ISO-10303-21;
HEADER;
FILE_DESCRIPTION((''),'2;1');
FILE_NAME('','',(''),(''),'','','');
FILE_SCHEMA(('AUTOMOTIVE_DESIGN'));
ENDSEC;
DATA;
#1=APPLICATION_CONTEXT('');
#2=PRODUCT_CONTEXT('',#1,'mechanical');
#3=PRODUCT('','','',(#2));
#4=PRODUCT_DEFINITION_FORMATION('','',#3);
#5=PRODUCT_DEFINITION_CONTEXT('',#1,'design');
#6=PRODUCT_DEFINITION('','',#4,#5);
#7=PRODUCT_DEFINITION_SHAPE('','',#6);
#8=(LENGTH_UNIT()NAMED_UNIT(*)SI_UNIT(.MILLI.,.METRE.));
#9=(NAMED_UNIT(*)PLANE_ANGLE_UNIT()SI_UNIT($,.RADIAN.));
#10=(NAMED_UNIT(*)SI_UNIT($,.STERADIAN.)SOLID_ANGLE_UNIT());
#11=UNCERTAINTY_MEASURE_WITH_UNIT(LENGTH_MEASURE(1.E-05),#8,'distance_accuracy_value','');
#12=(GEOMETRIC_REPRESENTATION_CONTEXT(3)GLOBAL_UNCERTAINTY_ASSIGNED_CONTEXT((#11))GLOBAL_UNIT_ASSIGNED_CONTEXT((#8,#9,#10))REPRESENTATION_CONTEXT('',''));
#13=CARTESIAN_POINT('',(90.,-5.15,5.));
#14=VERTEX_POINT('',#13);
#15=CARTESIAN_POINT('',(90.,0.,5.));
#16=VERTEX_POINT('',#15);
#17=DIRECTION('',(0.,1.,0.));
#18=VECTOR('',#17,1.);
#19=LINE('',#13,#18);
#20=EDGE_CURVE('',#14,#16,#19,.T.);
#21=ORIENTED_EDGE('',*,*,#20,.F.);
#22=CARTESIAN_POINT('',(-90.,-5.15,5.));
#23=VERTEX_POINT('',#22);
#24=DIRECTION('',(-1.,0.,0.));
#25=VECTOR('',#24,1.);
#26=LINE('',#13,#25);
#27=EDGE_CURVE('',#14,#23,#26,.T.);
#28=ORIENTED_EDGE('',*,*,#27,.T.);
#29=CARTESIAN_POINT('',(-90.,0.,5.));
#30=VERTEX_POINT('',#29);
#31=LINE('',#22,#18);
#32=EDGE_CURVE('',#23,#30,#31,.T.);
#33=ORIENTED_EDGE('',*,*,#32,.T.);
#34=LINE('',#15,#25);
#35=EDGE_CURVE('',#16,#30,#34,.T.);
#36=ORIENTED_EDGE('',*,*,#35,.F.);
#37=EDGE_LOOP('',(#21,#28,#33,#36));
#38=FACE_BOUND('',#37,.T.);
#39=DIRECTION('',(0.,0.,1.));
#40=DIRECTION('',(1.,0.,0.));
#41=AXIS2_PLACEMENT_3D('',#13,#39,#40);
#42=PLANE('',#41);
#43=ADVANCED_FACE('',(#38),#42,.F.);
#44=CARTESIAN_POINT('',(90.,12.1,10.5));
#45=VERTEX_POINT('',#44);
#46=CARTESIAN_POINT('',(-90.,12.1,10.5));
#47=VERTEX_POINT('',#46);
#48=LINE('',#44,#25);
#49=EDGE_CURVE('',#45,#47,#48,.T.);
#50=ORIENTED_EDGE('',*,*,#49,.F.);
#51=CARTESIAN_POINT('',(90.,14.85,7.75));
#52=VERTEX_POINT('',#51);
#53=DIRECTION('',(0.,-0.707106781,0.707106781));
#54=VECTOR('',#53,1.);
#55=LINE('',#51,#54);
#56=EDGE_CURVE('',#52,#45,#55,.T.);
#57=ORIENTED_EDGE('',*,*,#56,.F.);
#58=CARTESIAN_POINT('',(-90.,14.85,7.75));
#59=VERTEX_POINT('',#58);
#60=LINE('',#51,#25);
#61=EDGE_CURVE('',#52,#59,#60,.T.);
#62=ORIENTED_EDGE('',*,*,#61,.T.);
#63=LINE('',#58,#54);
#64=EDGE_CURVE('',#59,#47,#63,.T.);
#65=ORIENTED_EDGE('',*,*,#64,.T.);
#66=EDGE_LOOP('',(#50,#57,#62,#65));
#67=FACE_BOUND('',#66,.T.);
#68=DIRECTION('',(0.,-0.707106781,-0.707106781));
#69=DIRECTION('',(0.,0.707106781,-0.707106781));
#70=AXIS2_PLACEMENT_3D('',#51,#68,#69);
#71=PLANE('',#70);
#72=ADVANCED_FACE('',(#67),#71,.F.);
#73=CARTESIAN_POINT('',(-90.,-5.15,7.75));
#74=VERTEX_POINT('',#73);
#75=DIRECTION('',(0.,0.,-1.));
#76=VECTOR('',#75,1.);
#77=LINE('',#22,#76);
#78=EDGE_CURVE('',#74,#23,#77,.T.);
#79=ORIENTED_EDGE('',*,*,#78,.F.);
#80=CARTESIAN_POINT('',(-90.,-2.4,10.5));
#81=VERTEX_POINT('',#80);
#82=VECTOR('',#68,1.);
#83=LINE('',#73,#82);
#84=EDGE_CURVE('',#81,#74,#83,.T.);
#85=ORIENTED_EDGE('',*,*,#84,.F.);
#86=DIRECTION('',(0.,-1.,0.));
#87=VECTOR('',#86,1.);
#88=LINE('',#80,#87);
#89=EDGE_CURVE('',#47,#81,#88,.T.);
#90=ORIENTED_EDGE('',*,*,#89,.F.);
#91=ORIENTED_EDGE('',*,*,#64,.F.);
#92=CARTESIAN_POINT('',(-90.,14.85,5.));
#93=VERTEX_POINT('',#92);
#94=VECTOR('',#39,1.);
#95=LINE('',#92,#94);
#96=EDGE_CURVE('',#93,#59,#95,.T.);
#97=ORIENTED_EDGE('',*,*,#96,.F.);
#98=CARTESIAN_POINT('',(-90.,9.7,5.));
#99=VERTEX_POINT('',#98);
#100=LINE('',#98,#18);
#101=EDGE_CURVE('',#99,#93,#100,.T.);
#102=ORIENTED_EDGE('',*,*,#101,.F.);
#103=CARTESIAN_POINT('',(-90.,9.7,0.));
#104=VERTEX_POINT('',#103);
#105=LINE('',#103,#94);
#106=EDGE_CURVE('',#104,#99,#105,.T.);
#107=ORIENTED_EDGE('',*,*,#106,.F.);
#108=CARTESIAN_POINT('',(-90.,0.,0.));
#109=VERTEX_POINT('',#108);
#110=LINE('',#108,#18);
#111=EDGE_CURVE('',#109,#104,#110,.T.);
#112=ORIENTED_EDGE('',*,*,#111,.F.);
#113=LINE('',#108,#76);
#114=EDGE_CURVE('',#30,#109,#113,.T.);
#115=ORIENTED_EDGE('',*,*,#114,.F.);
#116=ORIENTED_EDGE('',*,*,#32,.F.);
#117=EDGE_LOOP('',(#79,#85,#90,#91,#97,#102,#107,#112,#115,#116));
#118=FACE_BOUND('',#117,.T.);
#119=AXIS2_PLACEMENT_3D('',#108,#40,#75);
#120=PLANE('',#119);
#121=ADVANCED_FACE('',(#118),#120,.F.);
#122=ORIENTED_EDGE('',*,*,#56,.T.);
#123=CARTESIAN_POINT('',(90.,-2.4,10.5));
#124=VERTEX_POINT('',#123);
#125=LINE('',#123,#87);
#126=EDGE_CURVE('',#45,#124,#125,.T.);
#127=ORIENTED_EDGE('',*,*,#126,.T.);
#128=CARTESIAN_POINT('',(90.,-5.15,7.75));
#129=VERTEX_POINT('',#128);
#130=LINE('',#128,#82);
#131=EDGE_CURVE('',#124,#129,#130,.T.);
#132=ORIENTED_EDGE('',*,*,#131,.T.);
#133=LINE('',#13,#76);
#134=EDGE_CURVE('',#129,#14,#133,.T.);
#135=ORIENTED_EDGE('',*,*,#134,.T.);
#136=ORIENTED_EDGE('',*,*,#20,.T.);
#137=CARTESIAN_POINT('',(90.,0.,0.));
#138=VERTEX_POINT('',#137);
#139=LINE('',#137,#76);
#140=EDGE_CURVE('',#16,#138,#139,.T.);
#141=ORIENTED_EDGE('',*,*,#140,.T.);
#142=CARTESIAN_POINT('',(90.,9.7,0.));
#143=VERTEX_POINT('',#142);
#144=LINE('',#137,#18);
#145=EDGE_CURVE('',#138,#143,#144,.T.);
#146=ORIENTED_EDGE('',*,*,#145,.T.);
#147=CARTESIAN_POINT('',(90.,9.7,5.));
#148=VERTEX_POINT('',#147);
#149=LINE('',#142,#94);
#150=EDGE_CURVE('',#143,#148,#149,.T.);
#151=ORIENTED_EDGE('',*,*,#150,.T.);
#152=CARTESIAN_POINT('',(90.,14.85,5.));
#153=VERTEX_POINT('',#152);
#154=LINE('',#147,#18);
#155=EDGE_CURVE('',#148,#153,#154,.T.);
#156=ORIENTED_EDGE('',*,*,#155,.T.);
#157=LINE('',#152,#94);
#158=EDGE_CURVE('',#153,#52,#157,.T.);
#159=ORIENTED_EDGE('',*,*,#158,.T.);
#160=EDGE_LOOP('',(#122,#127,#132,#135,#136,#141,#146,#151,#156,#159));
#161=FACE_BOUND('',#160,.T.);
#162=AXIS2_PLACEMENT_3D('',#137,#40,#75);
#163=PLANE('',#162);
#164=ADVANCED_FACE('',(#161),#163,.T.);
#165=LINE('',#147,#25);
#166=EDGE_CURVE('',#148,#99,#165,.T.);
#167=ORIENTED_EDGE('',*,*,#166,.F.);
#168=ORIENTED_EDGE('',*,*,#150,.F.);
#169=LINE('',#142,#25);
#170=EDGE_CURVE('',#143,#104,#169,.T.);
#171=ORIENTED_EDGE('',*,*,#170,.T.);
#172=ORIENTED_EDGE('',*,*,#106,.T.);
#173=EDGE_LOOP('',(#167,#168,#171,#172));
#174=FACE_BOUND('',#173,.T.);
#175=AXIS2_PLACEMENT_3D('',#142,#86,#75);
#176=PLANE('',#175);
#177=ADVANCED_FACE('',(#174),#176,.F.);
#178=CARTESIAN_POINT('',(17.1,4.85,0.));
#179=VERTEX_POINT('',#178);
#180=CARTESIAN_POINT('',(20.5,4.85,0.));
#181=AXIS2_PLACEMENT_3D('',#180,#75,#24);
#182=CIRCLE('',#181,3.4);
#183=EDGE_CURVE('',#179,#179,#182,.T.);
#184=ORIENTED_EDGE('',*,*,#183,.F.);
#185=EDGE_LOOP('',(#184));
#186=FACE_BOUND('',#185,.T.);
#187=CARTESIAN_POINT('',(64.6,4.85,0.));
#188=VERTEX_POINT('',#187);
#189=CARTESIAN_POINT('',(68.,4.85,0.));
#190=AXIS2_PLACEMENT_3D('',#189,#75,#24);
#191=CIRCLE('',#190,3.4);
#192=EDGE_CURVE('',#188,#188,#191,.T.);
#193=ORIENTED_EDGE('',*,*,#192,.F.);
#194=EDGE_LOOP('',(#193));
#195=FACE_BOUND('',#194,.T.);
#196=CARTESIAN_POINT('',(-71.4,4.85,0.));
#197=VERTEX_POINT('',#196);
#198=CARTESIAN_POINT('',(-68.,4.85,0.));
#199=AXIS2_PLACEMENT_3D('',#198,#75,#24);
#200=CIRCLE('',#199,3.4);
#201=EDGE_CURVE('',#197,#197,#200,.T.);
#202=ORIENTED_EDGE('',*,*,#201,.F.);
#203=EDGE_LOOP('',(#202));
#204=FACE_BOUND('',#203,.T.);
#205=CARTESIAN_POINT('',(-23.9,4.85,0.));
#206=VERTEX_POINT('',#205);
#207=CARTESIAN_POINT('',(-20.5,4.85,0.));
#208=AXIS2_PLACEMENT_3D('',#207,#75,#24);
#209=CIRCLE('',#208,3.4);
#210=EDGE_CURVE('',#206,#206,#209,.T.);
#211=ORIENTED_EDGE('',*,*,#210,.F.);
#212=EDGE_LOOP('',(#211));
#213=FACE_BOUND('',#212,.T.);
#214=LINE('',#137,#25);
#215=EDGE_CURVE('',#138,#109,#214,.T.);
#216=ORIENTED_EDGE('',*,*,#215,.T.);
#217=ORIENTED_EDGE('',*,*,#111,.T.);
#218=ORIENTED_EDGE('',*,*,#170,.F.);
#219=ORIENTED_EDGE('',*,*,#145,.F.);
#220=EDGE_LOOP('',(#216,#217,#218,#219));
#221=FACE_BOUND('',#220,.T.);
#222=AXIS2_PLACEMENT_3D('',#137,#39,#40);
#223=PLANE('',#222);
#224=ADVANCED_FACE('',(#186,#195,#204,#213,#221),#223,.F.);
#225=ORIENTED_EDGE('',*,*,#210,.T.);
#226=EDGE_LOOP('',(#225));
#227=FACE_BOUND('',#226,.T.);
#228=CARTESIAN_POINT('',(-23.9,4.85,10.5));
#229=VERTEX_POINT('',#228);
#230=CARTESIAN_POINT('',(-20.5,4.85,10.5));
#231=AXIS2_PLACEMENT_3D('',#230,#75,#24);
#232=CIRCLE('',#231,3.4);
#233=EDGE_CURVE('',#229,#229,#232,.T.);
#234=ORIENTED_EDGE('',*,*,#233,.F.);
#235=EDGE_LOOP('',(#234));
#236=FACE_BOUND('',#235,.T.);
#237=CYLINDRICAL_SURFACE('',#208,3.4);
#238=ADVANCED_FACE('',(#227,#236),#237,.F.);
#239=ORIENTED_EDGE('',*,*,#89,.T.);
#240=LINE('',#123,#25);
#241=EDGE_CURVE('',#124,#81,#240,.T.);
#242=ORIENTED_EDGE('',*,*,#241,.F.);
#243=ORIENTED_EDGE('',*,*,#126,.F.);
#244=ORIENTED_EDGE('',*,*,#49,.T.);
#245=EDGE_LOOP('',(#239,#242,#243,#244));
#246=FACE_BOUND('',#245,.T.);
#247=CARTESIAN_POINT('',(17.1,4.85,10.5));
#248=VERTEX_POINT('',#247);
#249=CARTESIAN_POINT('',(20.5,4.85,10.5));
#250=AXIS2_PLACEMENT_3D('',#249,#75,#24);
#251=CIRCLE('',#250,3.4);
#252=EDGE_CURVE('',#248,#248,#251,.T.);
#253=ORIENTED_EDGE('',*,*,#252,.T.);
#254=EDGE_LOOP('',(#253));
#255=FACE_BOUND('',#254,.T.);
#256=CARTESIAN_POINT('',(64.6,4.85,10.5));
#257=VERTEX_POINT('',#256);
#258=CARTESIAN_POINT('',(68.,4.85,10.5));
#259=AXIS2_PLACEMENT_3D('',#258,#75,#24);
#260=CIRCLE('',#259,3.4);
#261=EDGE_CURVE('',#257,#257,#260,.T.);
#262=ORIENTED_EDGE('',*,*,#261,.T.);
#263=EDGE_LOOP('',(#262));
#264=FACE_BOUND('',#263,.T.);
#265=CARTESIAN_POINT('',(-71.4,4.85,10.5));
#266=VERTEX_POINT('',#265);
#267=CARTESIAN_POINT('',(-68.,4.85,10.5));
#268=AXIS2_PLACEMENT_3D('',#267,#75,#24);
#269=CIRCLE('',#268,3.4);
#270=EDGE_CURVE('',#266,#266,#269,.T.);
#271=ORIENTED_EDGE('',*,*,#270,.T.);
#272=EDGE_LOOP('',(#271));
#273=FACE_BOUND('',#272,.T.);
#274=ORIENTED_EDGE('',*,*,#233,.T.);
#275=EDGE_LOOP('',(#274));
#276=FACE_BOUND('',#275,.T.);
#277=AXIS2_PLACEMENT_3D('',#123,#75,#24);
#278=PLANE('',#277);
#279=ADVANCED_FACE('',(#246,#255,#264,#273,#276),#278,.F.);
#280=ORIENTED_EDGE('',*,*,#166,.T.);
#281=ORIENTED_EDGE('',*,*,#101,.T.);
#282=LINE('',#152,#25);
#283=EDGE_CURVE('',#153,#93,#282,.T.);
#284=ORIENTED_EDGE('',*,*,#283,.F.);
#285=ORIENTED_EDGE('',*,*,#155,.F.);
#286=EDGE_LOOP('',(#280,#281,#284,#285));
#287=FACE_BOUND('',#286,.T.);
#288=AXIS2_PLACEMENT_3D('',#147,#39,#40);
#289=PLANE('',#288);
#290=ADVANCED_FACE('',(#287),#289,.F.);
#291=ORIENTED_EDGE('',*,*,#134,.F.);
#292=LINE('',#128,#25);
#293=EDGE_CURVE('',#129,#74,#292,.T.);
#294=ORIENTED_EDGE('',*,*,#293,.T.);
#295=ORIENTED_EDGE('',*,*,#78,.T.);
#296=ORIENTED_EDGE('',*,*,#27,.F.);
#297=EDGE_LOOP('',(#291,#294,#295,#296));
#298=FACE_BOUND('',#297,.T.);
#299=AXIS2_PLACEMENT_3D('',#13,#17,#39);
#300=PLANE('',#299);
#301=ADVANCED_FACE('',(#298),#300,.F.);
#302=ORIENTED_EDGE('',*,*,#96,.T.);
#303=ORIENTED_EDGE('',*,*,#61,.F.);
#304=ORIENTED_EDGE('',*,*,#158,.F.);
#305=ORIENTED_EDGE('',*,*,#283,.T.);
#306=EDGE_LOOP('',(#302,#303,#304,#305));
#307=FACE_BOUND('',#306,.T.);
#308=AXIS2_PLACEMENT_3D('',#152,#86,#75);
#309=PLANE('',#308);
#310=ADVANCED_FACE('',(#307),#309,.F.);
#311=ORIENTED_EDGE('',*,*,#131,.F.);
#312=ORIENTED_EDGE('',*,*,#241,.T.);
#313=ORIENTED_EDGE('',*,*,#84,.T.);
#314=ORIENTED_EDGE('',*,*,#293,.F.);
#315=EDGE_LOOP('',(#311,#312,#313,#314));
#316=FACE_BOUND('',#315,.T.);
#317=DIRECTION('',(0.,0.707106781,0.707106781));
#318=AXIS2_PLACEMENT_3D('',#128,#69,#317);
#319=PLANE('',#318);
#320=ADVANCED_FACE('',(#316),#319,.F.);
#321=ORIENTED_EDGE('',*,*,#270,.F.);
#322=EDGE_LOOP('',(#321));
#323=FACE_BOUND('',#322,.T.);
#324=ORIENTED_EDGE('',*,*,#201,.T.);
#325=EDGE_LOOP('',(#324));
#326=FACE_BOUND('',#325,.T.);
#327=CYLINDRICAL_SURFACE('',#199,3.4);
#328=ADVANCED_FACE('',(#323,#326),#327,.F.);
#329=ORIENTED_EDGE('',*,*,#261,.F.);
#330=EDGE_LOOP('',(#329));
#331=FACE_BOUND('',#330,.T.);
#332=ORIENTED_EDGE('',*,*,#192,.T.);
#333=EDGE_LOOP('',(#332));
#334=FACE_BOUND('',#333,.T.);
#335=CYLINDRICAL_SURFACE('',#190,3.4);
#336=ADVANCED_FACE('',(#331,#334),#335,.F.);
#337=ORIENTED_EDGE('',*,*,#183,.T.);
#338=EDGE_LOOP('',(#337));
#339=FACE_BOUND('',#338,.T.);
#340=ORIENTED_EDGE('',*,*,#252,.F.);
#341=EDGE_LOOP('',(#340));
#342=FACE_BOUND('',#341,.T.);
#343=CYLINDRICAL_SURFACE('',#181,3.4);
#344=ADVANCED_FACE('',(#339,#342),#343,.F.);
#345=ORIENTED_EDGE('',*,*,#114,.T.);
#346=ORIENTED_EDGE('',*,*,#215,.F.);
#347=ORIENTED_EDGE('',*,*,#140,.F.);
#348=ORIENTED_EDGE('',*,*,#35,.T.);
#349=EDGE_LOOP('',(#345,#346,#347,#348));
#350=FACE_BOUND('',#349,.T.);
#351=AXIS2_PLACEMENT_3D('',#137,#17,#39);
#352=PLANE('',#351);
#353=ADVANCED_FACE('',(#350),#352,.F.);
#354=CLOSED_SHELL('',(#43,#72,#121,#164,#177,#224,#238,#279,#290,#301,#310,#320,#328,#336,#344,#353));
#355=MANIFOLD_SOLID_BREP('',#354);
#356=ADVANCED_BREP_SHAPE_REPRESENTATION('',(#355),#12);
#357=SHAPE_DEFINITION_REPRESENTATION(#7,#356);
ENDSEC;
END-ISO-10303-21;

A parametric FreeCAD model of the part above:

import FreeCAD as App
import Part
import Sketcher
from FreeCAD import Vector

doc = App.newDocument("Part")
body = doc.addObject("PartDesign::Body", "Body")

sketch1 = body.newObject("Sketcher::SketchObject", "Sketch")
sketch1.AttachmentSupport = (doc.getObject("YZ_Plane"), [""])
sketch1.MapMode = "FlatFace"
sketch1.addGeometry(Part.LineSegment(Vector(12.1, 10.5, 0), Vector(-2.4, 10.5, 0)), False)
sketch1.addGeometry(Part.LineSegment(Vector(-2.4, 10.5, 0), Vector(-5.15, 7.75, 0)), False)
sketch1.addGeometry(Part.LineSegment(Vector(-5.15, 7.75, 0), Vector(-5.15, 5, 0)), False)
sketch1.addGeometry(Part.LineSegment(Vector(-5.15, 5, 0), Vector(0, 5, 0)), False)
sketch1.addGeometry(Part.LineSegment(Vector(0, 5, 0), Vector(0, 0, 0)), False)
sketch1.addGeometry(Part.LineSegment(Vector(0, 0, 0), Vector(9.7, 0, 0)), False)
sketch1.addGeometry(Part.LineSegment(Vector(9.7, 0, 0), Vector(9.7, 5, 0)), False)
sketch1.addGeometry(Part.LineSegment(Vector(9.7, 5, 0), Vector(14.85, 5, 0)), False)
sketch1.addGeometry(Part.LineSegment(Vector(14.85, 5, 0), Vector(14.85, 7.75, 0)), False)
sketch1.addGeometry(Part.LineSegment(Vector(14.85, 7.75, 0), Vector(12.1, 10.5, 0)), False)
sketch1.addConstraint(Sketcher.Constraint("Coincident", 0, 2, 1, 1))
sketch1.addConstraint(Sketcher.Constraint("Coincident", 1, 2, 2, 1))
sketch1.addConstraint(Sketcher.Constraint("Coincident", 2, 2, 3, 1))
sketch1.addConstraint(Sketcher.Constraint("Coincident", 3, 2, 4, 1))
sketch1.addConstraint(Sketcher.Constraint("Coincident", 4, 2, 5, 1))
sketch1.addConstraint(Sketcher.Constraint("Coincident", 5, 2, 6, 1))
sketch1.addConstraint(Sketcher.Constraint("Coincident", 6, 2, 7, 1))
sketch1.addConstraint(Sketcher.Constraint("Coincident", 7, 2, 8, 1))
sketch1.addConstraint(Sketcher.Constraint("Coincident", 8, 2, 9, 1))
sketch1.addConstraint(Sketcher.Constraint("Coincident", 9, 2, 0, 1))
sketch1.addConstraint(Sketcher.Constraint("Horizontal", 0))
sketch1.addConstraint(Sketcher.Constraint("Vertical", 2))
sketch1.addConstraint(Sketcher.Constraint("Horizontal", 3))
sketch1.addConstraint(Sketcher.Constraint("Vertical", 4))
sketch1.addConstraint(Sketcher.Constraint("Horizontal", 5))
sketch1.addConstraint(Sketcher.Constraint("Vertical", 6))
sketch1.addConstraint(Sketcher.Constraint("Horizontal", 7))
sketch1.addConstraint(Sketcher.Constraint("Vertical", 8))
sketch1.addConstraint(Sketcher.Constraint("Coincident", 4, 2, -1, 1))
sketch1.addConstraint(Sketcher.Constraint("Perpendicular", 1, 9))
sketch1.addConstraint(Sketcher.Constraint("Horizontal", 3, 2, 6, 2))
sketch1.addConstraint(Sketcher.Constraint("Horizontal", 1, 2, 8, 2))
sketch1.addConstraint(Sketcher.Constraint("Equal", 3, 7))
sketch1.addConstraint(Sketcher.Constraint("Equal", 1, 9))
sketch1.addConstraint(Sketcher.Constraint("DistanceY", 4, 2, 4, 1, 5.0))
sketch1.addConstraint(Sketcher.Constraint("DistanceX", 0, 2, 0, 1, 14.5))
sketch1.addConstraint(Sketcher.Constraint("DistanceX", 5, 1, 5, 2, 9.7))
sketch1.addConstraint(Sketcher.Constraint("DistanceX", 3, 1, 3, 2, 5.15))
sketch1.addConstraint(Sketcher.Constraint("DistanceY", 2, 2, 2, 1, 2.75))
pad1 = body.newObject("PartDesign::Pad", "Pad")
pad1.Profile = sketch1
pad1.Length = 180
pad1.Midplane = True

sketch2 = body.newObject("Sketcher::SketchObject", "Sketch001")
sketch2.AttachmentSupport = (doc.getObject("XY_Plane"), [""])
sketch2.MapMode = "FlatFace"
sketch2.addGeometry(Part.Circle(Vector(68, 4.85, 0), Vector(0, 0, 1), 3.4), False)
sketch2.addGeometry(Part.Circle(Vector(20.5, 4.85, 0), Vector(0, 0, 1), 3.4), False)
sketch2.addGeometry(Part.Circle(Vector(-20.5, 4.85, 0), Vector(0, 0, 1), 3.4), False)
sketch2.addGeometry(Part.Circle(Vector(-68, 4.85, 0), Vector(0, 0, 1), 3.4), False)
sketch2.addConstraint(Sketcher.Constraint("Equal", 0, 1))
sketch2.addConstraint(Sketcher.Constraint("Equal", 1, 2))
sketch2.addConstraint(Sketcher.Constraint("Equal", 2, 3))
sketch2.addConstraint(Sketcher.Constraint("Symmetric", 1, 3, 2, 3, -2))
sketch2.addConstraint(Sketcher.Constraint("Symmetric", 0, 3, 3, 3, -2))
sketch2.addConstraint(Sketcher.Constraint("Horizontal", 0, 3, 1, 3))
sketch2.addConstraint(Sketcher.Constraint("Diameter", 0, 6.8))
sketch2.addConstraint(Sketcher.Constraint("DistanceX", -1, 1, 0, 3, 68.0))
sketch2.addConstraint(Sketcher.Constraint("DistanceX", 2, 3, 1, 3, 41.0))
sketch2.addConstraint(Sketcher.Constraint("DistanceY", -1, 1, 0, 3, 4.85))
doc.recompute()
hole = body.newObject("PartDesign::Hole", "Hole")
hole.Profile = sketch2
hole.ThreadType = "None"
hole.Diameter = 6.8
hole.DepthType = "Dimension"
hole.Depth = 33.75
hole.DrillPoint = "Angled"
hole.DrillPointAngle = 118
hole.Reversed = True

doc.recompute()
